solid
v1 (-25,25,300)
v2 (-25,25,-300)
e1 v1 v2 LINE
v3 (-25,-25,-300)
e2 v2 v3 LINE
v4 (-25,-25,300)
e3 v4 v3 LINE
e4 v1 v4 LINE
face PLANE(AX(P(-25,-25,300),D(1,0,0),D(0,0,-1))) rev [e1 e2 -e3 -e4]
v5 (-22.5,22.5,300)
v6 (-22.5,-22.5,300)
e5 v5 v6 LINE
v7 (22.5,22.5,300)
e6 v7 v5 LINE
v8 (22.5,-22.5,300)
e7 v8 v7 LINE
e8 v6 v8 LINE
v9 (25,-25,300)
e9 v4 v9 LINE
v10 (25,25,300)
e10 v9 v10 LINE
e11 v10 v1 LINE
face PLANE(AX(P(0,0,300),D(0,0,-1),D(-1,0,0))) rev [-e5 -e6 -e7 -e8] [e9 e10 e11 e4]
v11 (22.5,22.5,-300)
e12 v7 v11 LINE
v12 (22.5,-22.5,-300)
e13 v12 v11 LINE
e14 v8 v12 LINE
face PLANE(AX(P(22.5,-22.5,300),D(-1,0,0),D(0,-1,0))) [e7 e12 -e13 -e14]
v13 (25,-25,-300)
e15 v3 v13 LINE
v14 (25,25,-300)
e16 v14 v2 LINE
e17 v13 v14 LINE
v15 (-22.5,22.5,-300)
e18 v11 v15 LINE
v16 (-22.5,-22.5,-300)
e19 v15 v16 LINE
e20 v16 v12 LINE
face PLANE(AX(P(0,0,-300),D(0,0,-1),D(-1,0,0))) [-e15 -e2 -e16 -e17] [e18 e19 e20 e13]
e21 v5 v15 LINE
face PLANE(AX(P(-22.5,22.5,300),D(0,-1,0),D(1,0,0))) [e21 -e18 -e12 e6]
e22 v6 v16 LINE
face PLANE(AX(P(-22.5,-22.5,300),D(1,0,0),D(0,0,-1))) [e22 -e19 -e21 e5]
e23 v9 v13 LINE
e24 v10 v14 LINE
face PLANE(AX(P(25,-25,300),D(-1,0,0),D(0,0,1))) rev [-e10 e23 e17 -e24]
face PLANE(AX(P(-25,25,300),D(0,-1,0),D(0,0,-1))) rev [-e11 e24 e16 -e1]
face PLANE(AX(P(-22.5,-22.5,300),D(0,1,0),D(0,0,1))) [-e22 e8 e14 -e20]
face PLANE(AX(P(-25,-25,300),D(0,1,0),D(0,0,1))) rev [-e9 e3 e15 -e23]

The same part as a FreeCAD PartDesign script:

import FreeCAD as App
import Part
import Sketcher

V = App.Vector


def add_polygon(sketch, points):
    """Adds a closed chain of lines whose ends are joined by coincident constraints."""
    first, n = sketch.GeometryCount, len(points)
    for a, b in zip(points, points[1:] + points[:1]):
        sketch.addGeometry(Part.LineSegment(App.Vector(*a, 0), App.Vector(*b, 0)), False)
    for i in range(n):
        sketch.addConstraint(Sketcher.Constraint("Coincident", first + i, 2, first + (i + 1) % n, 1))

doc = App.newDocument("Part")
body = doc.addObject("PartDesign::Body", "Body")

sketch1 = body.newObject("Sketcher::SketchObject", "Sketch")
sketch1.AttachmentSupport = (doc.getObject("XY_Plane"), [""])
sketch1.MapMode = "FlatFace"
add_polygon(sketch1, [(-25, 25), (-25, -25), (25, -25), (25, 25)])
add_polygon(sketch1, [(22.5, -22.5), (-22.5, -22.5), (-22.5, 22.5), (22.5, 22.5)])
sketch1.addConstraint([
    Sketcher.Constraint("Vertical", 0),
    Sketcher.Constraint("Horizontal", 1),
    Sketcher.Constraint("Vertical", 2),
    Sketcher.Constraint("Horizontal", 3),
    Sketcher.Constraint("Horizontal", 4),
    Sketcher.Constraint("Vertical", 5),
    Sketcher.Constraint("Horizontal", 6),
    Sketcher.Constraint("Vertical", 7),
    Sketcher.Constraint("Symmetric", 0, 2, 2, 2, -1, 1),
    Sketcher.Constraint("Symmetric", 4, 2, 6, 2, -1, 1),
    Sketcher.Constraint("Equal", 3, 0),
    Sketcher.Constraint("Equal", 6, 5),
    Sketcher.Constraint("DistanceX", 1, 1, 1, 2, 50.0),
    Sketcher.Constraint("DistanceX", 4, 2, 4, 1, 45.0),
])
pad1 = body.newObject("PartDesign::Pad", "Pad")
pad1.Profile = sketch1
pad1.Length = 600
pad1.Midplane = True

doc.recompute()
